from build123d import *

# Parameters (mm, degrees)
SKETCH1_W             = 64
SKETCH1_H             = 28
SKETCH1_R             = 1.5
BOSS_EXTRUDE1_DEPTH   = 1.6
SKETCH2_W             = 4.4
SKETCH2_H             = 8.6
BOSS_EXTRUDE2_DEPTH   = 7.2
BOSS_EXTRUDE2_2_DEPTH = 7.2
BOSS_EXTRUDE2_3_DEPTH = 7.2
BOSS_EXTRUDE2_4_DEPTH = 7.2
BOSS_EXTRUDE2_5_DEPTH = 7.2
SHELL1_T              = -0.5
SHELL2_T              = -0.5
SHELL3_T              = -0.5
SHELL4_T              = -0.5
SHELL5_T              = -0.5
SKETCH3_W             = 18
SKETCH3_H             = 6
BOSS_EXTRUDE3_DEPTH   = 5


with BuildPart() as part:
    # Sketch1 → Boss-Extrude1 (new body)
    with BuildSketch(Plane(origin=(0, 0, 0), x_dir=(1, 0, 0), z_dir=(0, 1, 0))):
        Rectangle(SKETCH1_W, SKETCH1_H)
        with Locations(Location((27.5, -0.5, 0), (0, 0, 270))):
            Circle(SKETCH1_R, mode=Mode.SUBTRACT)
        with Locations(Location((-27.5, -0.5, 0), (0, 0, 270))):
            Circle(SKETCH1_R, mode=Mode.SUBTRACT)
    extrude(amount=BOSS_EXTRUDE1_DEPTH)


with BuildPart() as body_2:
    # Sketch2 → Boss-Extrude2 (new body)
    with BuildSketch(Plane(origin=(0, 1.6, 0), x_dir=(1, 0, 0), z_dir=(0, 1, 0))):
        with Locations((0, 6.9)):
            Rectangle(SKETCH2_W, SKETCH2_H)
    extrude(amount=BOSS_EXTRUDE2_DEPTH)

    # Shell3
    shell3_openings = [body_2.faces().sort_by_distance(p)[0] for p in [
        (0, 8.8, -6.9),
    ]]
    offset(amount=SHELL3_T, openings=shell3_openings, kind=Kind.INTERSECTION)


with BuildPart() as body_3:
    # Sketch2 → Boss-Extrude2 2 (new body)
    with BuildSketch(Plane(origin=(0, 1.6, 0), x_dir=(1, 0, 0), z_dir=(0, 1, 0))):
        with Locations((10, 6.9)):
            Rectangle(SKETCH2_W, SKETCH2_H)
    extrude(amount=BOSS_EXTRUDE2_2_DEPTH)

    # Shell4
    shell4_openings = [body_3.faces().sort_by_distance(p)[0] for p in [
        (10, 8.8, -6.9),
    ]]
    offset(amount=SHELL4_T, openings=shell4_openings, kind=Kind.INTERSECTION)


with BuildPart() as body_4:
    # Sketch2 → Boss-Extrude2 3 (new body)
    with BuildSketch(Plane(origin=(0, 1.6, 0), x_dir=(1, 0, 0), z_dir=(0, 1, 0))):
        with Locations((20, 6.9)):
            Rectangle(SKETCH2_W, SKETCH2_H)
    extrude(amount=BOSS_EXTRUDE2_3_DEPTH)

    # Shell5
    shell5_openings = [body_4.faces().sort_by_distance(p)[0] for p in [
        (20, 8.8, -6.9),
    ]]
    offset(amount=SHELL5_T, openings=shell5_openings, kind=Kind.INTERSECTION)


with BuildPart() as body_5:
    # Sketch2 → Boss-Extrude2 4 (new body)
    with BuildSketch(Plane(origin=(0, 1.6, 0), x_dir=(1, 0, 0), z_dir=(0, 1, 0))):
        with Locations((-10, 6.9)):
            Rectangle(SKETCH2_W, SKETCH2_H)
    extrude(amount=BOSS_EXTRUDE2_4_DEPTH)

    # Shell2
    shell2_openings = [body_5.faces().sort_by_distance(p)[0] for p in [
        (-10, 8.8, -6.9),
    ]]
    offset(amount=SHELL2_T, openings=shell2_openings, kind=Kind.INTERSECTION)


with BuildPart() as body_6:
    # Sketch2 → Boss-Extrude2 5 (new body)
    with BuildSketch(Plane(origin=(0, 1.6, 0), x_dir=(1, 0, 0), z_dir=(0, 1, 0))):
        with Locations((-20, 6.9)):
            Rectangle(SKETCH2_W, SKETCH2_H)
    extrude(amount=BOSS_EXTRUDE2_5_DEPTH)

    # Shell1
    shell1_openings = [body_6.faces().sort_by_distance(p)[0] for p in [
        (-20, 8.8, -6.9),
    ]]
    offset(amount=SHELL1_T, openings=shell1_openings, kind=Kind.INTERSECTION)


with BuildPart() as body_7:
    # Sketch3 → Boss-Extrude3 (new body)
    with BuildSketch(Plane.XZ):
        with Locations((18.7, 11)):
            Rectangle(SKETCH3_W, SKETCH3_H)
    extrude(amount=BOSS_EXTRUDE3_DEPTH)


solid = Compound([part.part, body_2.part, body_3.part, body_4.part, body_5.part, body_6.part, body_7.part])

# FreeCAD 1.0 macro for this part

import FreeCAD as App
import Part
import Sketcher

V = App.Vector


def faces_at(feature, points):
    """Names of the faces that lie closest to the given points."""
    faces = feature.Shape.Faces
    near = lambda p: min(range(len(faces)), key=lambda i: faces[i].distToShape(Part.Vertex(*p))[0])
    return sorted({f"Face{near(p) + 1}" for p in points})

doc = App.newDocument("Part")
body = doc.addObject("PartDesign::Body", "Body")

sketch1 = body.newObject("Sketcher::SketchObject", "Sketch")
sketch1.AttachmentSupport = (doc.getObject("XZ_Plane"), [""])
sketch1.MapMode = "FlatFace"
sketch1.addGeometry([
    Part.LineSegment(V(-32, -14, 0), V(-32, 14, 0)),
    Part.LineSegment(V(-32, 14, 0), V(32, 14, 0)),
    Part.LineSegment(V(32, 14, 0), V(32, -14, 0)),
    Part.LineSegment(V(32, -14, 0), V(-32, -14, 0)),
    Part.Circle(V(-27.5, 0.5, 0), V(0, 0, 1), 1.5),
    Part.Circle(V(27.5, 0.5, 0), V(0, 0, 1), 1.5),
], False)
sketch1.addConstraint([
    Sketcher.Constraint("Coincident", 0, 2, 1, 1),
    Sketcher.Constraint("Coincident", 1, 2, 2, 1),
    Sketcher.Constraint("Coincident", 2, 2, 3, 1),
    Sketcher.Constraint("Coincident", 3, 2, 0, 1),
    Sketcher.Constraint("Vertical", 0),
    Sketcher.Constraint("Horizontal", 1),
    Sketcher.Constraint("Vertical", 2),
    Sketcher.Constraint("Horizontal", 3),
    Sketcher.Constraint("Equal", 4, 5),
    Sketcher.Constraint("Symmetric", 0, 2, 2, 2, -1, 1),
    Sketcher.Constraint("Symmetric", 4, 3, 5, 3, -2),
    Sketcher.Constraint("Diameter", 4, 3.0),
    Sketcher.Constraint("DistanceX", 1, 1, 1, 2, 64.0),
    Sketcher.Constraint("DistanceY", 0, 1, 0, 2, 28.0),
    Sketcher.Constraint("DistanceX", 4, 3, 5, 3, 55.0),
    Sketcher.Constraint("DistanceY", -1, 1, 4, 3, 0.5),
])
pad1 = body.newObject("PartDesign::Pad", "Pad")
pad1.Profile = sketch1
pad1.Length = 1.6
pad1.Reversed = True
body2 = doc.addObject("PartDesign::Body", "Body001")

sketch2 = body2.newObject("Sketcher::SketchObject", "Sketch001")
sketch2.AttachmentSupport = (doc.getObject("XZ_Plane001"), [""])
sketch2.MapMode = "FlatFace"
sketch2.AttachmentOffset = App.Placement(V(0, 0, -1.6), App.Rotation())
sketch2.addGeometry([
    Part.LineSegment(V(-2.2, -11.2, 0), V(-2.2, -2.6, 0)),
    Part.LineSegment(V(-2.2, -2.6, 0), V(2.2, -2.6, 0)),
    Part.LineSegment(V(2.2, -2.6, 0), V(2.2, -11.2, 0)),
    Part.LineSegment(V(2.2, -11.2, 0), V(-2.2, -11.2, 0)),
], False)
sketch2.addConstraint([
    Sketcher.Constraint("Coincident", 0, 2, 1, 1),
    Sketcher.Constraint("Coincident", 1, 2, 2, 1),
    Sketcher.Constraint("Coincident", 2, 2, 3, 1),
    Sketcher.Constraint("Coincident", 3, 2, 0, 1),
    Sketcher.Constraint("Vertical", 0),
    Sketcher.Constraint("Horizontal", 1),
    Sketcher.Constraint("Vertical", 2),
    Sketcher.Constraint("Horizontal", 3),
    Sketcher.Constraint("DistanceX", 1, 1, 1, 2, 4.4),
    Sketcher.Constraint("DistanceY", 0, 1, 0, 2, 8.6),
    Sketcher.Constraint("DistanceX", 0, 2, -1, 1, 2.2),
    Sketcher.Constraint("DistanceY", 0, 2, -1, 1, 2.6),
])
pad2 = body2.newObject("PartDesign::Pad", "Pad001")
pad2.Profile = sketch2
pad2.Length = 7.2
pad2.Reversed = True
doc.recompute()

thickness = body2.newObject("PartDesign::Thickness", "Thickness")
thickness.Base = (pad2, faces_at(pad2, [(0, 8.8, -6.9)]))
thickness.Value = 0.5
thickness.Reversed = True
thickness.Join = "Intersection"
body3 = doc.addObject("PartDesign::Body", "Body002")

sketch3 = body3.newObject("Sketcher::SketchObject", "Sketch002")
sketch3.AttachmentSupport = (doc.getObject("XZ_Plane002"), [""])
sketch3.MapMode = "FlatFace"
sketch3.AttachmentOffset = App.Placement(V(0, 0, -1.6), App.Rotation())
sketch3.addGeometry([
    Part.LineSegment(V(7.8, -11.2, 0), V(7.8, -2.6, 0)),
    Part.LineSegment(V(7.8, -2.6, 0), V(12.2, -2.6, 0)),
    Part.LineSegment(V(12.2, -2.6, 0), V(12.2, -11.2, 0)),
    Part.LineSegment(V(12.2, -11.2, 0), V(7.8, -11.2, 0)),
], False)
sketch3.addConstraint([
    Sketcher.Constraint("Coincident", 0, 2, 1, 1),
    Sketcher.Constraint("Coincident", 1, 2, 2, 1),
    Sketcher.Constraint("Coincident", 2, 2, 3, 1),
    Sketcher.Constraint("Coincident", 3, 2, 0, 1),
    Sketcher.Constraint("Vertical", 0),
    Sketcher.Constraint("Horizontal", 1),
    Sketcher.Constraint("Vertical", 2),
    Sketcher.Constraint("Horizontal", 3),
    Sketcher.Constraint("DistanceX", 1, 1, 1, 2, 4.4),
    Sketcher.Constraint("DistanceY", 0, 1, 0, 2, 8.6),
    Sketcher.Constraint("DistanceX", -1, 1, 0, 2, 7.8),
    Sketcher.Constraint("DistanceY", 0, 2, -1, 1, 2.6),
])
pad3 = body3.newObject("PartDesign::Pad", "Pad002")
pad3.Profile = sketch3
pad3.Length = 7.2
pad3.Reversed = True
doc.recompute()

thickness2 = body3.newObject("PartDesign::Thickness", "Thickness001")
thickness2.Base = (pad3, faces_at(pad3, [(10, 8.8, -6.9)]))
thickness2.Value = 0.5
thickness2.Reversed = True
thickness2.Join = "Intersection"
body4 = doc.addObject("PartDesign::Body", "Body003")

sketch4 = body4.newObject("Sketcher::SketchObject", "Sketch003")
sketch4.AttachmentSupport = (doc.getObject("XZ_Plane003"), [""])
sketch4.MapMode = "FlatFace"
sketch4.AttachmentOffset = App.Placement(V(0, 0, -1.6), App.Rotation())
sketch4.addGeometry([
    Part.LineSegment(V(17.8, -11.2, 0), V(17.8, -2.6, 0)),
    Part.LineSegment(V(17.8, -2.6, 0), V(22.2, -2.6, 0)),
    Part.LineSegment(V(22.2, -2.6, 0), V(22.2, -11.2, 0)),
    Part.LineSegment(V(22.2, -11.2, 0), V(17.8, -11.2, 0)),
], False)
sketch4.addConstraint([
    Sketcher.Constraint("Coincident", 0, 2, 1, 1),
    Sketcher.Constraint("Coincident", 1, 2, 2, 1),
    Sketcher.Constraint("Coincident", 2, 2, 3, 1),
    Sketcher.Constraint("Coincident", 3, 2, 0, 1),
    Sketcher.Constraint("Vertical", 0),
    Sketcher.Constraint("Horizontal", 1),
    Sketcher.Constraint("Vertical", 2),
    Sketcher.Constraint("Horizontal", 3),
    Sketcher.Constraint("DistanceX", 1, 1, 1, 2, 4.4),
    Sketcher.Constraint("DistanceY", 0, 1, 0, 2, 8.6),
    Sketcher.Constraint("DistanceX", -1, 1, 0, 2, 17.8),
    Sketcher.Constraint("DistanceY", 0, 2, -1, 1, 2.6),
])
pad4 = body4.newObject("PartDesign::Pad", "Pad003")
pad4.Profile = sketch4
pad4.Length = 7.2
pad4.Reversed = True
doc.recompute()

thickness3 = body4.newObject("PartDesign::Thickness", "Thickness002")
thickness3.Base = (pad4, faces_at(pad4, [(20, 8.8, -6.9)]))
thickness3.Value = 0.5
thickness3.Reversed = True
thickness3.Join = "Intersection"
body5 = doc.addObject("PartDesign::Body", "Body004")

sketch5 = body5.newObject("Sketcher::SketchObject", "Sketch004")
sketch5.AttachmentSupport = (doc.getObject("XZ_Plane004"), [""])
sketch5.MapMode = "FlatFace"
sketch5.AttachmentOffset = App.Placement(V(0, 0, -1.6), App.Rotation())
sketch5.addGeometry([
    Part.LineSegment(V(-12.2, -11.2, 0), V(-12.2, -2.6, 0)),
    Part.LineSegment(V(-12.2, -2.6, 0), V(-7.8, -2.6, 0)),
    Part.LineSegment(V(-7.8, -2.6, 0), V(-7.8, -11.2, 0)),
    Part.LineSegment(V(-7.8, -11.2, 0), V(-12.2, -11.2, 0)),
], False)
sketch5.addConstraint([
    Sketcher.Constraint("Coincident", 0, 2, 1, 1),
    Sketcher.Constraint("Coincident", 1, 2, 2, 1),
    Sketcher.Constraint("Coincident", 2, 2, 3, 1),
    Sketcher.Constraint("Coincident", 3, 2, 0, 1),
    Sketcher.Constraint("Vertical", 0),
    Sketcher.Constraint("Horizontal", 1),
    Sketcher.Constraint("Vertical", 2),
    Sketcher.Constraint("Horizontal", 3),
    Sketcher.Constraint("DistanceX", 1, 1, 1, 2, 4.4),
    Sketcher.Constraint("DistanceY", 0, 1, 0, 2, 8.6),
    Sketcher.Constraint("DistanceX", 0, 2, -1, 1, 12.2),
    Sketcher.Constraint("DistanceY", 0, 2, -1, 1, 2.6),
])
pad5 = body5.newObject("PartDesign::Pad", "Pad004")
pad5.Profile = sketch5
pad5.Length = 7.2
pad5.Reversed = True
doc.recompute()

thickness4 = body5.newObject("PartDesign::Thickness", "Thickness003")
thickness4.Base = (pad5, faces_at(pad5, [(-10, 8.8, -6.9)]))
thickness4.Value = 0.5
thickness4.Reversed = True
thickness4.Join = "Intersection"
body6 = doc.addObject("PartDesign::Body", "Body005")

sketch6 = body6.newObject("Sketcher::SketchObject", "Sketch005")
sketch6.AttachmentSupport = (doc.getObject("XZ_Plane005"), [""])
sketch6.MapMode = "FlatFace"
sketch6.AttachmentOffset = App.Placement(V(0, 0, -1.6), App.Rotation())
sketch6.addGeometry([
    Part.LineSegment(V(-22.2, -11.2, 0), V(-22.2, -2.6, 0)),
    Part.LineSegment(V(-22.2, -2.6, 0), V(-17.8, -2.6, 0)),
    Part.LineSegment(V(-17.8, -2.6, 0), V(-17.8, -11.2, 0)),
    Part.LineSegment(V(-17.8, -11.2, 0), V(-22.2, -11.2, 0)),
], False)
sketch6.addConstraint([
    Sketcher.Constraint("Coincident", 0, 2, 1, 1),
    Sketcher.Constraint("Coincident", 1, 2, 2, 1),
    Sketcher.Constraint("Coincident", 2, 2, 3, 1),
    Sketcher.Constraint("Coincident", 3, 2, 0, 1),
    Sketcher.Constraint("Vertical", 0),
    Sketcher.Constraint("Horizontal", 1),
    Sketcher.Constraint("Vertical", 2),
    Sketcher.Constraint("Horizontal", 3),
    Sketcher.Constraint("DistanceX", 1, 1, 1, 2, 4.4),
    Sketcher.Constraint("DistanceY", 0, 1, 0, 2, 8.6),
    Sketcher.Constraint("DistanceX", 0, 2, -1, 1, 22.2),
    Sketcher.Constraint("DistanceY", 0, 2, -1, 1, 2.6),
])
pad6 = body6.newObject("PartDesign::Pad", "Pad005")
pad6.Profile = sketch6
pad6.Length = 7.2
pad6.Reversed = True
doc.recompute()

thickness5 = body6.newObject("PartDesign::Thickness", "Thickness004")
thickness5.Base = (pad6, faces_at(pad6, [(-20, 8.8, -6.9)]))
thickness5.Value = 0.5
thickness5.Reversed = True
thickness5.Join = "Intersection"
body7 = doc.addObject("PartDesign::Body", "Body006")

sketch7 = body7.newObject("Sketcher::SketchObject", "Sketch006")
sketch7.AttachmentSupport = (doc.getObject("XZ_Plane006"), [""])
sketch7.MapMode = "FlatFace"
sketch7.addGeometry([
    Part.LineSegment(V(10, 14, 0), V(10, 8, 0)),
    Part.LineSegment(V(10, 8, 0), V(28, 8, 0)),
    Part.LineSegment(V(28, 8, 0), V(28, 14, 0)),
    Part.LineSegment(V(28, 14, 0), V(10, 14, 0)),
], False)
sketch7.addConstraint([
    Sketcher.Constraint("Coincident", 0, 2, 1, 1),
    Sketcher.Constraint("Coincident", 1, 2, 2, 1),
    Sketcher.Constraint("Coincident", 2, 2, 3, 1),
    Sketcher.Constraint("Coincident", 3, 2, 0, 1),
    Sketcher.Constraint("Vertical", 0),
    Sketcher.Constraint("Horizontal", 1),
    Sketcher.Constraint("Vertical", 2),
    Sketcher.Constraint("Horizontal", 3),
    Sketcher.Constraint("DistanceX", 1, 1, 1, 2, 18.0),
    Sketcher.Constraint("DistanceY", 0, 2, 0, 1, 6.0),
    Sketcher.Constraint("DistanceY", -1, 1, 0, 2, 8.0),
    Sketcher.Constraint("DistanceX", -1, 1, 0, 2, 9.7),
])
pad7 = body7.newObject("PartDesign::Pad", "Pad006")
pad7.Profile = sketch7
pad7.Length = 5

doc.recompute()
